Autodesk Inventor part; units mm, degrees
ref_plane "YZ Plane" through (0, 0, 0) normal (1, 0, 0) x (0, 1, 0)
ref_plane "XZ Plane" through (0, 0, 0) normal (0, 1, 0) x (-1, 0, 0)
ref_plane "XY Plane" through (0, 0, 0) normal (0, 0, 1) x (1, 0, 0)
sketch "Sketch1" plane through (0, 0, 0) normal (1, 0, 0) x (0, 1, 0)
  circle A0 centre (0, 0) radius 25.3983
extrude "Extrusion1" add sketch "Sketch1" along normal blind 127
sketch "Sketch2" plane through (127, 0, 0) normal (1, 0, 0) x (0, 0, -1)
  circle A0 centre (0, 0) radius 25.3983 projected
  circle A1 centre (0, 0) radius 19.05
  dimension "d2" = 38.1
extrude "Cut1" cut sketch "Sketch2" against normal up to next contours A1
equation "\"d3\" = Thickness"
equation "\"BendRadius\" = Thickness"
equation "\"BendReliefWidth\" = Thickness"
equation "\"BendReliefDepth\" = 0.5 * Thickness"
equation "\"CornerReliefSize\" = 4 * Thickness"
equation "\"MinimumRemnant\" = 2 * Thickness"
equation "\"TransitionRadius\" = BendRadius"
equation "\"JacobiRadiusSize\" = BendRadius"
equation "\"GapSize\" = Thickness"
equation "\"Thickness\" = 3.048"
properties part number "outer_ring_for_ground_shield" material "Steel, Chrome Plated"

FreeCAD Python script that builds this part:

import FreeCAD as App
import Part
import Sketcher
Q = App.Units.Quantity

doc = App.newDocument("Part")
body = doc.addObject("PartDesign::Body", "Body")

sketch1 = body.newObject("Sketcher::SketchObject", "Sketch")
sketch1.AttachmentSupport = (doc.getObject("YZ_Plane"), [""])
sketch1.MapMode = "FlatFace"
sketch1.addGeometry(Part.Circle(App.Vector(0, 0, 0), App.Vector(0, 0, 1), 25.3983), False)
sketch1.addConstraint(Sketcher.Constraint("Coincident", 0, 3, -1, 1))
sketch1.addConstraint(Sketcher.Constraint("Diameter", 0, 50.7966))
pad1 = body.newObject("PartDesign::Pad", "Pad")
pad1.Profile = sketch1
pad1.Length = Q("5 in")

sketch2 = body.newObject("Sketcher::SketchObject", "Sketch001")
sketch2.AttachmentSupport = (doc.getObject("YZ_Plane"), [""])
sketch2.MapMode = "FlatFace"
sketch2.AttachmentOffset = App.Placement(App.Vector(0, 0, 5 * 25.4), App.Rotation())
sketch2.addGeometry(Part.Circle(App.Vector(0, 0, 0), App.Vector(0, 0, 1), 19.05), False)
sketch2.addConstraint(Sketcher.Constraint("Coincident", 0, 3, -1, 1))
sketch2.addConstraint(Sketcher.Constraint("Diameter", 0, Q("1.5 in")))
pocket1 = body.newObject("PartDesign::Pocket", "Pocket")
pocket1.Profile = sketch2
pocket1.Type = "UpToFirst"

doc.recompute()
